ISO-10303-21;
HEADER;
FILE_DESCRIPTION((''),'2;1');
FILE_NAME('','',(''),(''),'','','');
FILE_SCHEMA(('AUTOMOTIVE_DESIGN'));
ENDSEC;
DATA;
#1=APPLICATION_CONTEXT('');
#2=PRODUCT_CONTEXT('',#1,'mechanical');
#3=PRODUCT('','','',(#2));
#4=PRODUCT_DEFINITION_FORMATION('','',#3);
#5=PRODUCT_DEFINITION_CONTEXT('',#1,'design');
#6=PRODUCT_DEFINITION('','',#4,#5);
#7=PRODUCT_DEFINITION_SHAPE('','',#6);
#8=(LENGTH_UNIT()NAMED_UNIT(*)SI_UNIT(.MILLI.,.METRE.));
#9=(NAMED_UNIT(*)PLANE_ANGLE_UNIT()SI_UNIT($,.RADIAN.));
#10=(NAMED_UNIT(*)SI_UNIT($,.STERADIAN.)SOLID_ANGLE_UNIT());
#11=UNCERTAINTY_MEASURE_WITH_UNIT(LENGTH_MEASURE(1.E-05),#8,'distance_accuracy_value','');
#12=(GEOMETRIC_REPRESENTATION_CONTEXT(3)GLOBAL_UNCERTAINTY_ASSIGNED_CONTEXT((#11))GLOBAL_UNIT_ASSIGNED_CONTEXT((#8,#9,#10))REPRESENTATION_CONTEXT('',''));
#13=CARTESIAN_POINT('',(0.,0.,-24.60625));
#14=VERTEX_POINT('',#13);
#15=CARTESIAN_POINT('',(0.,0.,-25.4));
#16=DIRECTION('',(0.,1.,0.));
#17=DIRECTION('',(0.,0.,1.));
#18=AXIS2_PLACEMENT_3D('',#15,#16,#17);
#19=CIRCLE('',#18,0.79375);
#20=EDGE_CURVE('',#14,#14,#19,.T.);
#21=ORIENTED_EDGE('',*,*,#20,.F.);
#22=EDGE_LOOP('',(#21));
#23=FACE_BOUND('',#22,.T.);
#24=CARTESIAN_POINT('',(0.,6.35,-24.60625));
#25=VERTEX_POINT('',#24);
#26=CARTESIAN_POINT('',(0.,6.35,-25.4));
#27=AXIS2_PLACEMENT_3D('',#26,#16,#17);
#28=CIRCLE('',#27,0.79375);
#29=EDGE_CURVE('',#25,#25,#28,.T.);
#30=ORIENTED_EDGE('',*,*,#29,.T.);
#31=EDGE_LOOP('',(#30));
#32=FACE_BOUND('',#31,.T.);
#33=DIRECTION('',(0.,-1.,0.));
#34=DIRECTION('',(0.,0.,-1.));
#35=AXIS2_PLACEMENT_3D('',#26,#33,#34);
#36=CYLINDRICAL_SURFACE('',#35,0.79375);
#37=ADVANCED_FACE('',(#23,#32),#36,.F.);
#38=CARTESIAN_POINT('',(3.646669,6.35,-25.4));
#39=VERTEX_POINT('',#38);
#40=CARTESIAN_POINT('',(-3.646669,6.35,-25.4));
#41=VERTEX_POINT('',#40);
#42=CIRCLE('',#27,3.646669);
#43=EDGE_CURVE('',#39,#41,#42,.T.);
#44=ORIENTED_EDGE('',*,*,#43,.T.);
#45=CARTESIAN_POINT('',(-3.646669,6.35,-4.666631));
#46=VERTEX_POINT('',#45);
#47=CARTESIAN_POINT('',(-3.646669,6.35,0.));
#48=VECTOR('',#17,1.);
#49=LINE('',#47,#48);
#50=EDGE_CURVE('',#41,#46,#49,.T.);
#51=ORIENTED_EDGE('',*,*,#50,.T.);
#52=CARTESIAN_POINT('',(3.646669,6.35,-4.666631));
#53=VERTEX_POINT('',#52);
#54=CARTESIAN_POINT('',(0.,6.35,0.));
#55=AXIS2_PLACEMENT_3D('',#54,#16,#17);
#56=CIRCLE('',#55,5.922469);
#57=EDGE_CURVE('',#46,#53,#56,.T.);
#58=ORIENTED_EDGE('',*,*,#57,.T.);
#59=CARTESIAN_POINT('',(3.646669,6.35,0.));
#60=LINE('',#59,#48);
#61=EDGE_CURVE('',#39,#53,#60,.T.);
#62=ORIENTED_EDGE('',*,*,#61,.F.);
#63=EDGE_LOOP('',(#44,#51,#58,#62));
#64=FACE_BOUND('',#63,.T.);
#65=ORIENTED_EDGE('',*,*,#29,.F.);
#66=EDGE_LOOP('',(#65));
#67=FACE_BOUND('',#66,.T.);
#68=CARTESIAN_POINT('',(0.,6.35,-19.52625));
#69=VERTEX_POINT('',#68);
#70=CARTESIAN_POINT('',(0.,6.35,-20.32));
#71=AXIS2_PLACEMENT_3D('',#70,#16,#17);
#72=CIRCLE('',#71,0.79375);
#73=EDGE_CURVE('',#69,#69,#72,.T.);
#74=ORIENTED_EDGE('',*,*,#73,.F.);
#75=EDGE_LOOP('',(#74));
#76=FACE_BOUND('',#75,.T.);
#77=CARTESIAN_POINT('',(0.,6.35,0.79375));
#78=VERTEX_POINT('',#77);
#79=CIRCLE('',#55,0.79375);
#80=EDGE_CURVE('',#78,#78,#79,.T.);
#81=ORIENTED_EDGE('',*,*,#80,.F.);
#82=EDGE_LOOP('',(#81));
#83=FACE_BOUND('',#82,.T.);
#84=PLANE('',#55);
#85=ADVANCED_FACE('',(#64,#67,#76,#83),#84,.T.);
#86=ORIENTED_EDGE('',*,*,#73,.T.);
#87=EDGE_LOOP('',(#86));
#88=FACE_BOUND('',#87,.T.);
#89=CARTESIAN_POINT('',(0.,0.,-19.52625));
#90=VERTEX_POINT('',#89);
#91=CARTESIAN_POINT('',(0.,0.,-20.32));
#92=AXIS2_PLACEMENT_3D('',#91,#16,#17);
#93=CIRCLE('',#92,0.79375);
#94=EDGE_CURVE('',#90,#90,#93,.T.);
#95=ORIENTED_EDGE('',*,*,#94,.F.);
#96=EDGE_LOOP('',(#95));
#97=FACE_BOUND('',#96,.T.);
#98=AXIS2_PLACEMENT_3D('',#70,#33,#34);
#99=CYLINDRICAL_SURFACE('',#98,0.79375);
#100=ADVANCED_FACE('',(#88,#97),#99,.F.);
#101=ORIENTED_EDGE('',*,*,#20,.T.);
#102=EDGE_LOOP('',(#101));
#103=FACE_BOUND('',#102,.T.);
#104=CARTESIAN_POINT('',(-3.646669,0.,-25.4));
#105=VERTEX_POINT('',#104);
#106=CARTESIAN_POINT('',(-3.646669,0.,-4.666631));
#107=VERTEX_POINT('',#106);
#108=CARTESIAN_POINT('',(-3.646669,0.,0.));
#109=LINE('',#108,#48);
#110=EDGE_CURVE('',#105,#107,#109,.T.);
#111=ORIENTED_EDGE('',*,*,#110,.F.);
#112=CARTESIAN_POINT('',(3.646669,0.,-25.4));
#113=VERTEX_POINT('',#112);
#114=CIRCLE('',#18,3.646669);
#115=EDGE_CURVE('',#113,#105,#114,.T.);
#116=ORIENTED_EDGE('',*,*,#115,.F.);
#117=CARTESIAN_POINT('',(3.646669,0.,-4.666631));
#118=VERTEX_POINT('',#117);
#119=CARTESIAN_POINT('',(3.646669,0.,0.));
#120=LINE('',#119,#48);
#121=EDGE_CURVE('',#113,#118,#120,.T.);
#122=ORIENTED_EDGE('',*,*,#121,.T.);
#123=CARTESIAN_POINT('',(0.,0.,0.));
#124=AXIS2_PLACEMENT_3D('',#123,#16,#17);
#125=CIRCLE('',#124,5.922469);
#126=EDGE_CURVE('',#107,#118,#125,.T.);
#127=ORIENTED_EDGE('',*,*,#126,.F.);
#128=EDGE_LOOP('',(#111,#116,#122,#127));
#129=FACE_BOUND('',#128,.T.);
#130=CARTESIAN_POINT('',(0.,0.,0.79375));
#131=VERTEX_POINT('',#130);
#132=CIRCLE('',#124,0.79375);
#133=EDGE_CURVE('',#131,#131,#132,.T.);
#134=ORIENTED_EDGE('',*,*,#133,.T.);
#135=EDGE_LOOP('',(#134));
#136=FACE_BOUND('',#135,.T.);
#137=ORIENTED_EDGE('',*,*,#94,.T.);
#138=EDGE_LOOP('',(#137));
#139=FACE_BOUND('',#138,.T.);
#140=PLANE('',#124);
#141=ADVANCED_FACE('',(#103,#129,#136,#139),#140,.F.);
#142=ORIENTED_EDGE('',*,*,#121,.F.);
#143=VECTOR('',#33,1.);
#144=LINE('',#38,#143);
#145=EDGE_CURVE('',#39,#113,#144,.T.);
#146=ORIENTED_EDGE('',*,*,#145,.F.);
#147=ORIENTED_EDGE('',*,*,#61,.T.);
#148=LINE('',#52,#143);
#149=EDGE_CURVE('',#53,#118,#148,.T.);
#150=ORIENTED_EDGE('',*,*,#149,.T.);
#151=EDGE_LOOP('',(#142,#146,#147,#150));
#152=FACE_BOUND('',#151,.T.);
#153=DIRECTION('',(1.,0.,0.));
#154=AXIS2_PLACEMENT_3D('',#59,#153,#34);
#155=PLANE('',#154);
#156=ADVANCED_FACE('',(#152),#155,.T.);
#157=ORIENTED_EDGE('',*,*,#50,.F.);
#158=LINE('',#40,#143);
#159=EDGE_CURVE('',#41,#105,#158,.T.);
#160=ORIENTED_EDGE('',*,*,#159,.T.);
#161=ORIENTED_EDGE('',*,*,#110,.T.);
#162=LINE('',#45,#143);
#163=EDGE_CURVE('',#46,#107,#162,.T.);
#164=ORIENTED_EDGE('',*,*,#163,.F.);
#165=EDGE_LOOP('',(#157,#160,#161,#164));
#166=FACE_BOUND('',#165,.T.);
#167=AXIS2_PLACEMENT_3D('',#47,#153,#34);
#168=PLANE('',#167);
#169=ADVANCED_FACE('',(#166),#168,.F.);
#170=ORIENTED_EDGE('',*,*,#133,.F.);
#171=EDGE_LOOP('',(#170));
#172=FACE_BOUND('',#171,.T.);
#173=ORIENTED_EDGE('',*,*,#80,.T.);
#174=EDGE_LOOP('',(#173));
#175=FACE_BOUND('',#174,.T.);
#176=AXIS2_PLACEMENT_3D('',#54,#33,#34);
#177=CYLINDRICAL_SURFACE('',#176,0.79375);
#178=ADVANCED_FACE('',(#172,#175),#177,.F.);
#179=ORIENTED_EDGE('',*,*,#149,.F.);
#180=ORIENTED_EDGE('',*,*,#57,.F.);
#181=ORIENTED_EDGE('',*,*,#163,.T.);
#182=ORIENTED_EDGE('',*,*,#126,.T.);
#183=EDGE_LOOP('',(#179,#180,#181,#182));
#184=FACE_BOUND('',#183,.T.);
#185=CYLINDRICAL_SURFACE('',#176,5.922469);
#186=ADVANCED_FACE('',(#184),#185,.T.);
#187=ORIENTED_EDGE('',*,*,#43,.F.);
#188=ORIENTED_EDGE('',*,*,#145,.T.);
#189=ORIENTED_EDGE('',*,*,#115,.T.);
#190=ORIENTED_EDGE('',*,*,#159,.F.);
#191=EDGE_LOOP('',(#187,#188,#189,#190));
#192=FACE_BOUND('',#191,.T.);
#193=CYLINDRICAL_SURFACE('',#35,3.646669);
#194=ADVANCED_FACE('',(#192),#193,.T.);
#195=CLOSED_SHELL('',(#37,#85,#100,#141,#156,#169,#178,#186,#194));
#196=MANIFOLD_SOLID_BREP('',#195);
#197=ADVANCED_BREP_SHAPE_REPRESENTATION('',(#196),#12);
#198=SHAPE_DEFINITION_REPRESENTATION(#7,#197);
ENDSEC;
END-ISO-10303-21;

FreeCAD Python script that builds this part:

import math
import FreeCAD as App
import Part
import Sketcher
from FreeCAD import Vector
Q = App.Units.Quantity

doc = App.newDocument("Part")
body = doc.addObject("PartDesign::Body", "Body")

sketch1 = body.newObject("Sketcher::SketchObject", "Sketch")
sketch1.AttachmentSupport = (doc.getObject("XZ_Plane"), [""])
sketch1.MapMode = "FlatFace"
sketch1.addGeometry([
    Part.LineSegment(Vector(3.646669, -4.666631, 0), Vector(3.646669, -25.4, 0)),
    Part.ArcOfCircle(Part.Circle(Vector(0, -25.4, 0), Vector(0, 0, 1), 3.646669), math.radians(180), math.radians(360)),
    Part.LineSegment(Vector(-3.646669, -25.4, 0), Vector(-3.646669, -4.666631, 0)),
    Part.ArcOfCircle(Part.Circle(Vector(0, 0, 0), Vector(0, 0, 1), 5.922469), math.radians(-51.994681), math.radians(231.994681)),
    Part.Circle(Vector(0, -25.4, 0), Vector(0, 0, 1), 0.79375),
    Part.Circle(Vector(0, -20.32, 0), Vector(0, 0, 1), 0.79375),
    Part.Circle(Vector(0, 0, 0), Vector(0, 0, 1), 0.79375),
], False)
sketch1.addConstraint([
    Sketcher.Constraint("Tangent", 0, 2, 1, 2),
    Sketcher.Constraint("Tangent", 1, 1, 2, 1),
    Sketcher.Constraint("Coincident", 2, 2, 3, 2),
    Sketcher.Constraint("Coincident", 3, 1, 0, 1),
    Sketcher.Constraint("Vertical", 0),
    Sketcher.Constraint("Vertical", 2),
    Sketcher.Constraint("Coincident", 3, 3, -1, 1),
    Sketcher.Constraint("Coincident", 6, 3, -1, 1),
    Sketcher.Constraint("Coincident", 4, 3, 1, 3),
    Sketcher.Constraint("Equal", 4, 5),
    Sketcher.Constraint("Equal", 5, 6),
    Sketcher.Constraint("PointOnObject", 1, 3, -2),
    Sketcher.Constraint("PointOnObject", 5, 3, -2),
    Sketcher.Constraint("Diameter", 4, Q("0.0625 in")),
    Sketcher.Constraint("DistanceY", 1, 3, -1, 1, Q("1 in")),
    Sketcher.Constraint("DistanceY", 5, 3, -1, 1, Q("0.8 in")),
    Sketcher.Constraint("Radius", 1, Q("3.646669 mm")),
    Sketcher.Constraint("Radius", 3, Q("5.922469 mm")),
])
pad1 = body.newObject("PartDesign::Pad", "Pad")
pad1.Profile = sketch1
pad1.Length = Q("0.25 in")
pad1.Reversed = True

doc.recompute()
